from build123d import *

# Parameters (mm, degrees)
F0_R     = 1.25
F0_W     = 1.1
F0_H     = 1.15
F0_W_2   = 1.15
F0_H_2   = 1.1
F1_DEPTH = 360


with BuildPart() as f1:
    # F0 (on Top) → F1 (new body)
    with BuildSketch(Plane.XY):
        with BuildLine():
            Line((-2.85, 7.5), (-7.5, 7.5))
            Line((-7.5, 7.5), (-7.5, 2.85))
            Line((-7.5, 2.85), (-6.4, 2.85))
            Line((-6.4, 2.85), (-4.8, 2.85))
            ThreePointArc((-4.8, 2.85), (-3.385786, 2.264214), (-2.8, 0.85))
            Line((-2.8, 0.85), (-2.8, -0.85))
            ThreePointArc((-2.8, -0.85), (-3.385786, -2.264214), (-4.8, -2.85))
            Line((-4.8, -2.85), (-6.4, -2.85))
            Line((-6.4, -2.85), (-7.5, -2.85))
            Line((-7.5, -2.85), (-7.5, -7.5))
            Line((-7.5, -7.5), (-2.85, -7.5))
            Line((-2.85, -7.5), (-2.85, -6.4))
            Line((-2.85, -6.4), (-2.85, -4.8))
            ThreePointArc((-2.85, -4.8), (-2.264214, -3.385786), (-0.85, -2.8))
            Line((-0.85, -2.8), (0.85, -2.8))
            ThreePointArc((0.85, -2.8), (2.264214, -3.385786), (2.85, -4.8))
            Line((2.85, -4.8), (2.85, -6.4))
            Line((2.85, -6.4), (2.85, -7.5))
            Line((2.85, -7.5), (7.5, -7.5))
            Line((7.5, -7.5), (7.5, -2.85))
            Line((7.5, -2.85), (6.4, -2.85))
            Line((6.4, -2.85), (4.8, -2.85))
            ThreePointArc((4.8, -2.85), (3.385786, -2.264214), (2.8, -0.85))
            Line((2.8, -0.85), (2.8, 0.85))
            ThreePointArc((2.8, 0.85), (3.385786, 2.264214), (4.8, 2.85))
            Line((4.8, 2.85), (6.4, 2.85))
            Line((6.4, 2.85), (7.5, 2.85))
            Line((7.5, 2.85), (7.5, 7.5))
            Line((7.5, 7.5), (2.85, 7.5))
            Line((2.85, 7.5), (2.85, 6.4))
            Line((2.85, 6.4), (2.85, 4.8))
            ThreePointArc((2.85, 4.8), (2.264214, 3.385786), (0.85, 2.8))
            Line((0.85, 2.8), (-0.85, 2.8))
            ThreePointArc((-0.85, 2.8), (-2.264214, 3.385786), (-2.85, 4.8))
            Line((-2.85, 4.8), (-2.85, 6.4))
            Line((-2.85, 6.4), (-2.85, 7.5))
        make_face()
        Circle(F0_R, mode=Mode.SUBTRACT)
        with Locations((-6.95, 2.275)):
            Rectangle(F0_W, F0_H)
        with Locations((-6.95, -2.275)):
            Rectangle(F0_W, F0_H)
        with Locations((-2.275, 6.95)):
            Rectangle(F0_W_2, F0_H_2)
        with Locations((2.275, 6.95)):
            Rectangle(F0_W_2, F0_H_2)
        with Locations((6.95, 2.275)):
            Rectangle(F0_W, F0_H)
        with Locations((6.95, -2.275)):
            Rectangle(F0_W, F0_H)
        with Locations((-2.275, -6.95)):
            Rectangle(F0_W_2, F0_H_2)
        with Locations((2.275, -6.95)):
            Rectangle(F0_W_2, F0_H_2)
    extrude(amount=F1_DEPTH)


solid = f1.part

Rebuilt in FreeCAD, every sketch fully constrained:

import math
import FreeCAD as App
import Part
import Sketcher

doc = App.newDocument("Part")
body = doc.addObject("PartDesign::Body", "Body")

# Sketch on XY plane
sketch1 = doc.addObject("Sketcher::SketchObject", "Sketch")
body.addObject(sketch1)
sketch1.AttachmentSupport = (doc.XY_Plane, [""])
sketch1.MapMode = "FlatFace"
sketch1.addGeometry(Part.LineSegment(App.Vector(-7.5, 7.5, 0), App.Vector(-7.5, 1.7, 0)), False)
sketch1.addGeometry(Part.LineSegment(App.Vector(-7.5, 1.7, 0), App.Vector(-6.4, 1.7, 0)), False)
sketch1.addGeometry(Part.LineSegment(App.Vector(-6.4, 1.7, 0), App.Vector(-6.4, 2.9, 0)), False)
sketch1.addGeometry(Part.LineSegment(App.Vector(-6.4, 2.9, 0), App.Vector(-4.8, 2.9, 0)), False)
sketch1.addGeometry(Part.ArcOfCircle(Part.Circle(App.Vector(-4.8, 0.9, 0), App.Vector(0, 0, 1), 2), math.radians(0), math.radians(90)), False)
sketch1.addGeometry(Part.LineSegment(App.Vector(-2.8, 0.8, 0), App.Vector(-2.8, -0.8, 0)), False)
sketch1.addGeometry(Part.ArcOfCircle(Part.Circle(App.Vector(-4.8, -0.9, 0), App.Vector(0, 0, 1), 2), math.radians(-90), math.radians(0)), False)
sketch1.addGeometry(Part.LineSegment(App.Vector(-4.8, -2.9, 0), App.Vector(-6.4, -2.9, 0)), False)
sketch1.addGeometry(Part.LineSegment(App.Vector(-6.4, -2.9, 0), App.Vector(-6.4, -1.7, 0)), False)
sketch1.addGeometry(Part.LineSegment(App.Vector(-6.4, -1.7, 0), App.Vector(-7.5, -1.7, 0)), False)
sketch1.addGeometry(Part.LineSegment(App.Vector(-7.5, -1.7, 0), App.Vector(-7.5, -7.5, 0)), False)
sketch1.addGeometry(Part.LineSegment(App.Vector(-7.5, -7.5, 0), App.Vector(-1.7, -7.5, 0)), False)
sketch1.addGeometry(Part.LineSegment(App.Vector(-1.7, -7.5, 0), App.Vector(-1.7, -6.4, 0)), False)
sketch1.addGeometry(Part.LineSegment(App.Vector(-1.7, -6.4, 0), App.Vector(-2.9, -6.4, 0)), False)
sketch1.addGeometry(Part.LineSegment(App.Vector(-2.9, -6.4, 0), App.Vector(-2.9, -4.8, 0)), False)
sketch1.addGeometry(Part.ArcOfCircle(Part.Circle(App.Vector(-0.9, -4.8, 0), App.Vector(0, 0, 1), 2), math.radians(90), math.radians(180)), False)
sketch1.addGeometry(Part.LineSegment(App.Vector(-0.8, -2.8, 0), App.Vector(0.8, -2.8, 0)), False)
sketch1.addGeometry(Part.ArcOfCircle(Part.Circle(App.Vector(0.9, -4.8, 0), App.Vector(0, 0, 1), 2), math.radians(0), math.radians(90)), False)
sketch1.addGeometry(Part.LineSegment(App.Vector(2.9, -4.8, 0), App.Vector(2.9, -6.4, 0)), False)
sketch1.addGeometry(Part.LineSegment(App.Vector(2.9, -6.4, 0), App.Vector(1.7, -6.4, 0)), False)
sketch1.addGeometry(Part.LineSegment(App.Vector(1.7, -6.4, 0), App.Vector(1.7, -7.5, 0)), False)
sketch1.addGeometry(Part.LineSegment(App.Vector(1.7, -7.5, 0), App.Vector(7.5, -7.5, 0)), False)
sketch1.addGeometry(Part.LineSegment(App.Vector(7.5, -7.5, 0), App.Vector(7.5, -1.7, 0)), False)
sketch1.addGeometry(Part.LineSegment(App.Vector(7.5, -1.7, 0), App.Vector(6.4, -1.7, 0)), False)
sketch1.addGeometry(Part.LineSegment(App.Vector(6.4, -1.7, 0), App.Vector(6.4, -2.9, 0)), False)
sketch1.addGeometry(Part.LineSegment(App.Vector(6.4, -2.9, 0), App.Vector(4.8, -2.9, 0)), False)
sketch1.addGeometry(Part.ArcOfCircle(Part.Circle(App.Vector(4.8, -0.9, 0), App.Vector(0, 0, 1), 2), math.radians(180), math.radians(270)), False)
sketch1.addGeometry(Part.LineSegment(App.Vector(2.8, -0.8, 0), App.Vector(2.8, 0.8, 0)), False)
sketch1.addGeometry(Part.ArcOfCircle(Part.Circle(App.Vector(4.8, 0.9, 0), App.Vector(0, 0, 1), 2), math.radians(90), math.radians(180)), False)
sketch1.addGeometry(Part.LineSegment(App.Vector(4.8, 2.9, 0), App.Vector(6.4, 2.9, 0)), False)
sketch1.addGeometry(Part.LineSegment(App.Vector(6.4, 2.9, 0), App.Vector(6.4, 1.7, 0)), False)
sketch1.addGeometry(Part.LineSegment(App.Vector(6.4, 1.7, 0), App.Vector(7.5, 1.7, 0)), False)
sketch1.addGeometry(Part.LineSegment(App.Vector(7.5, 1.7, 0), App.Vector(7.5, 7.5, 0)), False)
sketch1.addGeometry(Part.LineSegment(App.Vector(7.5, 7.5, 0), App.Vector(1.7, 7.5, 0)), False)
sketch1.addGeometry(Part.LineSegment(App.Vector(1.7, 7.5, 0), App.Vector(1.7, 6.4, 0)), False)
sketch1.addGeometry(Part.LineSegment(App.Vector(1.7, 6.4, 0), App.Vector(2.9, 6.4, 0)), False)
sketch1.addGeometry(Part.LineSegment(App.Vector(2.9, 6.4, 0), App.Vector(2.9, 4.8, 0)), False)
sketch1.addGeometry(Part.ArcOfCircle(Part.Circle(App.Vector(0.9, 4.8, 0), App.Vector(0, 0, 1), 2), math.radians(-90), math.radians(0)), False)
sketch1.addGeometry(Part.LineSegment(App.Vector(0.8, 2.8, 0), App.Vector(-0.8, 2.8, 0)), False)
sketch1.addGeometry(Part.ArcOfCircle(Part.Circle(App.Vector(-0.9, 4.8, 0), App.Vector(0, 0, 1), 2), math.radians(180), math.radians(270)), False)
sketch1.addGeometry(Part.LineSegment(App.Vector(-2.9, 4.8, 0), App.Vector(-2.9, 6.4, 0)), False)
sketch1.addGeometry(Part.LineSegment(App.Vector(-2.9, 6.4, 0), App.Vector(-1.7, 6.4, 0)), False)
sketch1.addGeometry(Part.LineSegment(App.Vector(-1.7, 6.4, 0), App.Vector(-1.7, 7.5, 0)), False)
sketch1.addGeometry(Part.LineSegment(App.Vector(-1.7, 7.5, 0), App.Vector(-7.5, 7.5, 0)), False)
sketch1.addGeometry(Part.Circle(App.Vector(0, 0, 0), App.Vector(0, 0, 1), 1.2), False)
sketch1.addConstraint(Sketcher.Constraint("Coincident", 0, 2, 1, 1))
sketch1.addConstraint(Sketcher.Constraint("Coincident", 1, 2, 2, 1))
sketch1.addConstraint(Sketcher.Constraint("Coincident", 2, 2, 3, 1))
sketch1.addConstraint(Sketcher.Constraint("Tangent", 3, 2, 4, 2))
sketch1.addConstraint(Sketcher.Constraint("Tangent", 4, 1, 5, 1))
sketch1.addConstraint(Sketcher.Constraint("Tangent", 5, 2, 6, 2))
sketch1.addConstraint(Sketcher.Constraint("Tangent", 6, 1, 7, 1))
sketch1.addConstraint(Sketcher.Constraint("Coincident", 7, 2, 8, 1))
sketch1.addConstraint(Sketcher.Constraint("Coincident", 8, 2, 9, 1))
sketch1.addConstraint(Sketcher.Constraint("Coincident", 9, 2, 10, 1))
sketch1.addConstraint(Sketcher.Constraint("Coincident", 10, 2, 11, 1))
sketch1.addConstraint(Sketcher.Constraint("Coincident", 11, 2, 12, 1))
sketch1.addConstraint(Sketcher.Constraint("Coincident", 12, 2, 13, 1))
sketch1.addConstraint(Sketcher.Constraint("Coincident", 13, 2, 14, 1))
sketch1.addConstraint(Sketcher.Constraint("Tangent", 14, 2, 15, 2))
sketch1.addConstraint(Sketcher.Constraint("Tangent", 15, 1, 16, 1))
sketch1.addConstraint(Sketcher.Constraint("Tangent", 16, 2, 17, 2))
sketch1.addConstraint(Sketcher.Constraint("Tangent", 17, 1, 18, 1))
sketch1.addConstraint(Sketcher.Constraint("Coincident", 18, 2, 19, 1))
sketch1.addConstraint(Sketcher.Constraint("Coincident", 19, 2, 20, 1))
sketch1.addConstraint(Sketcher.Constraint("Coincident", 20, 2, 21, 1))
sketch1.addConstraint(Sketcher.Constraint("Coincident", 21, 2, 22, 1))
sketch1.addConstraint(Sketcher.Constraint("Coincident", 22, 2, 23, 1))
sketch1.addConstraint(Sketcher.Constraint("Coincident", 23, 2, 24, 1))
sketch1.addConstraint(Sketcher.Constraint("Coincident", 24, 2, 25, 1))
sketch1.addConstraint(Sketcher.Constraint("Tangent", 25, 2, 26, 2))
sketch1.addConstraint(Sketcher.Constraint("Tangent", 26, 1, 27, 1))
sketch1.addConstraint(Sketcher.Constraint("Tangent", 27, 2, 28, 2))
sketch1.addConstraint(Sketcher.Constraint("Tangent", 28, 1, 29, 1))
sketch1.addConstraint(Sketcher.Constraint("Coincident", 29, 2, 30, 1))
sketch1.addConstraint(Sketcher.Constraint("Coincident", 30, 2, 31, 1))
sketch1.addConstraint(Sketcher.Constraint("Coincident", 31, 2, 32, 1))
sketch1.addConstraint(Sketcher.Constraint("Coincident", 32, 2, 33, 1))
sketch1.addConstraint(Sketcher.Constraint("Coincident", 33, 2, 34, 1))
sketch1.addConstraint(Sketcher.Constraint("Coincident", 34, 2, 35, 1))
sketch1.addConstraint(Sketcher.Constraint("Coincident", 35, 2, 36, 1))
sketch1.addConstraint(Sketcher.Constraint("Tangent", 36, 2, 37, 2))
sketch1.addConstraint(Sketcher.Constraint("Tangent", 37, 1, 38, 1))
sketch1.addConstraint(Sketcher.Constraint("Tangent", 38, 2, 39, 2))
sketch1.addConstraint(Sketcher.Constraint("Tangent", 39, 1, 40, 1))
sketch1.addConstraint(Sketcher.Constraint("Coincident", 40, 2, 41, 1))
sketch1.addConstraint(Sketcher.Constraint("Coincident", 41, 2, 42, 1))
sketch1.addConstraint(Sketcher.Constraint("Coincident", 42, 2, 43, 1))
sketch1.addConstraint(Sketcher.Constraint("Coincident", 43, 2, 0, 1))
sketch1.addConstraint(Sketcher.Constraint("Vertical", 0))
sketch1.addConstraint(Sketcher.Constraint("Horizontal", 1))
sketch1.addConstraint(Sketcher.Constraint("Vertical", 2))
sketch1.addConstraint(Sketcher.Constraint("Horizontal", 3))
sketch1.addConstraint(Sketcher.Constraint("Vertical", 5))
sketch1.addConstraint(Sketcher.Constraint("Horizontal", 7))
sketch1.addConstraint(Sketcher.Constraint("Vertical", 8))
sketch1.addConstraint(Sketcher.Constraint("Horizontal", 9))
sketch1.addConstraint(Sketcher.Constraint("Vertical", 10))
sketch1.addConstraint(Sketcher.Constraint("Horizontal", 11))
sketch1.addConstraint(Sketcher.Constraint("Vertical", 12))
sketch1.addConstraint(Sketcher.Constraint("Horizontal", 13))
sketch1.addConstraint(Sketcher.Constraint("Vertical", 14))
sketch1.addConstraint(Sketcher.Constraint("Horizontal", 16))
sketch1.addConstraint(Sketcher.Constraint("Vertical", 18))
sketch1.addConstraint(Sketcher.Constraint("Horizontal", 19))
sketch1.addConstraint(Sketcher.Constraint("Vertical", 20))
sketch1.addConstraint(Sketcher.Constraint("Horizontal", 21))
sketch1.addConstraint(Sketcher.Constraint("Vertical", 22))
sketch1.addConstraint(Sketcher.Constraint("Horizontal", 23))
sketch1.addConstraint(Sketcher.Constraint("Vertical", 24))
sketch1.addConstraint(Sketcher.Constraint("Horizontal", 25))
sketch1.addConstraint(Sketcher.Constraint("Vertical", 27))
sketch1.addConstraint(Sketcher.Constraint("Horizontal", 29))
sketch1.addConstraint(Sketcher.Constraint("Vertical", 30))
sketch1.addConstraint(Sketcher.Constraint("Horizontal", 31))
sketch1.addConstraint(Sketcher.Constraint("Vertical", 32))
sketch1.addConstraint(Sketcher.Constraint("Horizontal", 33))
sketch1.addConstraint(Sketcher.Constraint("Vertical", 34))
sketch1.addConstraint(Sketcher.Constraint("Horizontal", 35))
sketch1.addConstraint(Sketcher.Constraint("Vertical", 36))
sketch1.addConstraint(Sketcher.Constraint("Horizontal", 38))
sketch1.addConstraint(Sketcher.Constraint("Vertical", 40))
sketch1.addConstraint(Sketcher.Constraint("Horizontal", 41))
sketch1.addConstraint(Sketcher.Constraint("Vertical", 42))
sketch1.addConstraint(Sketcher.Constraint("Horizontal", 43))
sketch1.addConstraint(Sketcher.Constraint("Coincident", 44, 3, -1, 1))
sketch1.addConstraint(Sketcher.Constraint("Equal", 4, 6))
sketch1.addConstraint(Sketcher.Constraint("Equal", 6, 15))
sketch1.addConstraint(Sketcher.Constraint("Equal", 15, 17))
sketch1.addConstraint(Sketcher.Constraint("Equal", 17, 26))
sketch1.addConstraint(Sketcher.Constraint("Equal", 26, 28))
sketch1.addConstraint(Sketcher.Constraint("Equal", 28, 37))
sketch1.addConstraint(Sketcher.Constraint("Equal", 37, 39))
sketch1.addConstraint(Sketcher.Constraint("Symmetric", 4, 3, 26, 3, -1, 1))
sketch1.addConstraint(Sketcher.Constraint("Symmetric", 15, 3, 37, 3, -1, 1))
sketch1.addConstraint(Sketcher.Constraint("Symmetric", 0, 2, 22, 2, -1, 1))
sketch1.addConstraint(Sketcher.Constraint("Symmetric", 7, 2, 29, 2, -1, 1))
sketch1.addConstraint(Sketcher.Constraint("Symmetric", 9, 2, 31, 2, -1, 1))
sketch1.addConstraint(Sketcher.Constraint("Symmetric", 11, 2, 33, 2, -1, 1))
sketch1.addConstraint(Sketcher.Constraint("Symmetric", 18, 2, 40, 2, -1, 1))
sketch1.addConstraint(Sketcher.Constraint("Symmetric", 20, 2, 42, 2, -1, 1))
sketch1.addConstraint(Sketcher.Constraint("Symmetric", 13, 2, 18, 2, -2))
sketch1.addConstraint(Sketcher.Constraint("Symmetric", 11, 2, 20, 2, -2))
sketch1.addConstraint(Sketcher.Constraint("Symmetric", 9, 2, 22, 2, -2))
sketch1.addConstraint(Sketcher.Constraint("Symmetric", 7, 2, 24, 2, -2))
sketch1.addConstraint(Sketcher.Constraint("Horizontal", 35, 2, 40, 2))
sketch1.addConstraint(Sketcher.Constraint("Vertical", 2, 2, 7, 2))
sketch1.addConstraint(Sketcher.Constraint("Equal", 43, 0))
sketch1.addConstraint(Sketcher.Constraint("Equal", 41, 2))
sketch1.addConstraint(Sketcher.Constraint("Equal", 38, 5))
sketch1.addConstraint(Sketcher.Constraint("Equal", 31, 12))
sketch1.addConstraint(Sketcher.Constraint("Equal", 29, 14))
sketch1.addConstraint(Sketcher.Constraint("Radius", 4, 1.999999))
sketch1.addConstraint(Sketcher.Constraint("Diameter", 44, 2.5))
sketch1.addConstraint(Sketcher.Constraint("DistanceX", 1, 1, 1, 2, 1.1))
sketch1.addConstraint(Sketcher.Constraint("DistanceX", 3, 1, 3, 2, 1.6))
sketch1.addConstraint(Sketcher.Constraint("DistanceX", 11, 1, 11, 2, 5.8))
sketch1.addConstraint(Sketcher.Constraint("DistanceX", 16, 1, 16, 2, 1.7))
sketch1.addConstraint(Sketcher.Constraint("DistanceX", 13, 2, 13, 1, 1.15))
pad1 = doc.addObject("PartDesign::Pad", "Pad")
body.addObject(pad1)
pad1.Profile = sketch1
pad1.Length = 360

doc.recompute()
